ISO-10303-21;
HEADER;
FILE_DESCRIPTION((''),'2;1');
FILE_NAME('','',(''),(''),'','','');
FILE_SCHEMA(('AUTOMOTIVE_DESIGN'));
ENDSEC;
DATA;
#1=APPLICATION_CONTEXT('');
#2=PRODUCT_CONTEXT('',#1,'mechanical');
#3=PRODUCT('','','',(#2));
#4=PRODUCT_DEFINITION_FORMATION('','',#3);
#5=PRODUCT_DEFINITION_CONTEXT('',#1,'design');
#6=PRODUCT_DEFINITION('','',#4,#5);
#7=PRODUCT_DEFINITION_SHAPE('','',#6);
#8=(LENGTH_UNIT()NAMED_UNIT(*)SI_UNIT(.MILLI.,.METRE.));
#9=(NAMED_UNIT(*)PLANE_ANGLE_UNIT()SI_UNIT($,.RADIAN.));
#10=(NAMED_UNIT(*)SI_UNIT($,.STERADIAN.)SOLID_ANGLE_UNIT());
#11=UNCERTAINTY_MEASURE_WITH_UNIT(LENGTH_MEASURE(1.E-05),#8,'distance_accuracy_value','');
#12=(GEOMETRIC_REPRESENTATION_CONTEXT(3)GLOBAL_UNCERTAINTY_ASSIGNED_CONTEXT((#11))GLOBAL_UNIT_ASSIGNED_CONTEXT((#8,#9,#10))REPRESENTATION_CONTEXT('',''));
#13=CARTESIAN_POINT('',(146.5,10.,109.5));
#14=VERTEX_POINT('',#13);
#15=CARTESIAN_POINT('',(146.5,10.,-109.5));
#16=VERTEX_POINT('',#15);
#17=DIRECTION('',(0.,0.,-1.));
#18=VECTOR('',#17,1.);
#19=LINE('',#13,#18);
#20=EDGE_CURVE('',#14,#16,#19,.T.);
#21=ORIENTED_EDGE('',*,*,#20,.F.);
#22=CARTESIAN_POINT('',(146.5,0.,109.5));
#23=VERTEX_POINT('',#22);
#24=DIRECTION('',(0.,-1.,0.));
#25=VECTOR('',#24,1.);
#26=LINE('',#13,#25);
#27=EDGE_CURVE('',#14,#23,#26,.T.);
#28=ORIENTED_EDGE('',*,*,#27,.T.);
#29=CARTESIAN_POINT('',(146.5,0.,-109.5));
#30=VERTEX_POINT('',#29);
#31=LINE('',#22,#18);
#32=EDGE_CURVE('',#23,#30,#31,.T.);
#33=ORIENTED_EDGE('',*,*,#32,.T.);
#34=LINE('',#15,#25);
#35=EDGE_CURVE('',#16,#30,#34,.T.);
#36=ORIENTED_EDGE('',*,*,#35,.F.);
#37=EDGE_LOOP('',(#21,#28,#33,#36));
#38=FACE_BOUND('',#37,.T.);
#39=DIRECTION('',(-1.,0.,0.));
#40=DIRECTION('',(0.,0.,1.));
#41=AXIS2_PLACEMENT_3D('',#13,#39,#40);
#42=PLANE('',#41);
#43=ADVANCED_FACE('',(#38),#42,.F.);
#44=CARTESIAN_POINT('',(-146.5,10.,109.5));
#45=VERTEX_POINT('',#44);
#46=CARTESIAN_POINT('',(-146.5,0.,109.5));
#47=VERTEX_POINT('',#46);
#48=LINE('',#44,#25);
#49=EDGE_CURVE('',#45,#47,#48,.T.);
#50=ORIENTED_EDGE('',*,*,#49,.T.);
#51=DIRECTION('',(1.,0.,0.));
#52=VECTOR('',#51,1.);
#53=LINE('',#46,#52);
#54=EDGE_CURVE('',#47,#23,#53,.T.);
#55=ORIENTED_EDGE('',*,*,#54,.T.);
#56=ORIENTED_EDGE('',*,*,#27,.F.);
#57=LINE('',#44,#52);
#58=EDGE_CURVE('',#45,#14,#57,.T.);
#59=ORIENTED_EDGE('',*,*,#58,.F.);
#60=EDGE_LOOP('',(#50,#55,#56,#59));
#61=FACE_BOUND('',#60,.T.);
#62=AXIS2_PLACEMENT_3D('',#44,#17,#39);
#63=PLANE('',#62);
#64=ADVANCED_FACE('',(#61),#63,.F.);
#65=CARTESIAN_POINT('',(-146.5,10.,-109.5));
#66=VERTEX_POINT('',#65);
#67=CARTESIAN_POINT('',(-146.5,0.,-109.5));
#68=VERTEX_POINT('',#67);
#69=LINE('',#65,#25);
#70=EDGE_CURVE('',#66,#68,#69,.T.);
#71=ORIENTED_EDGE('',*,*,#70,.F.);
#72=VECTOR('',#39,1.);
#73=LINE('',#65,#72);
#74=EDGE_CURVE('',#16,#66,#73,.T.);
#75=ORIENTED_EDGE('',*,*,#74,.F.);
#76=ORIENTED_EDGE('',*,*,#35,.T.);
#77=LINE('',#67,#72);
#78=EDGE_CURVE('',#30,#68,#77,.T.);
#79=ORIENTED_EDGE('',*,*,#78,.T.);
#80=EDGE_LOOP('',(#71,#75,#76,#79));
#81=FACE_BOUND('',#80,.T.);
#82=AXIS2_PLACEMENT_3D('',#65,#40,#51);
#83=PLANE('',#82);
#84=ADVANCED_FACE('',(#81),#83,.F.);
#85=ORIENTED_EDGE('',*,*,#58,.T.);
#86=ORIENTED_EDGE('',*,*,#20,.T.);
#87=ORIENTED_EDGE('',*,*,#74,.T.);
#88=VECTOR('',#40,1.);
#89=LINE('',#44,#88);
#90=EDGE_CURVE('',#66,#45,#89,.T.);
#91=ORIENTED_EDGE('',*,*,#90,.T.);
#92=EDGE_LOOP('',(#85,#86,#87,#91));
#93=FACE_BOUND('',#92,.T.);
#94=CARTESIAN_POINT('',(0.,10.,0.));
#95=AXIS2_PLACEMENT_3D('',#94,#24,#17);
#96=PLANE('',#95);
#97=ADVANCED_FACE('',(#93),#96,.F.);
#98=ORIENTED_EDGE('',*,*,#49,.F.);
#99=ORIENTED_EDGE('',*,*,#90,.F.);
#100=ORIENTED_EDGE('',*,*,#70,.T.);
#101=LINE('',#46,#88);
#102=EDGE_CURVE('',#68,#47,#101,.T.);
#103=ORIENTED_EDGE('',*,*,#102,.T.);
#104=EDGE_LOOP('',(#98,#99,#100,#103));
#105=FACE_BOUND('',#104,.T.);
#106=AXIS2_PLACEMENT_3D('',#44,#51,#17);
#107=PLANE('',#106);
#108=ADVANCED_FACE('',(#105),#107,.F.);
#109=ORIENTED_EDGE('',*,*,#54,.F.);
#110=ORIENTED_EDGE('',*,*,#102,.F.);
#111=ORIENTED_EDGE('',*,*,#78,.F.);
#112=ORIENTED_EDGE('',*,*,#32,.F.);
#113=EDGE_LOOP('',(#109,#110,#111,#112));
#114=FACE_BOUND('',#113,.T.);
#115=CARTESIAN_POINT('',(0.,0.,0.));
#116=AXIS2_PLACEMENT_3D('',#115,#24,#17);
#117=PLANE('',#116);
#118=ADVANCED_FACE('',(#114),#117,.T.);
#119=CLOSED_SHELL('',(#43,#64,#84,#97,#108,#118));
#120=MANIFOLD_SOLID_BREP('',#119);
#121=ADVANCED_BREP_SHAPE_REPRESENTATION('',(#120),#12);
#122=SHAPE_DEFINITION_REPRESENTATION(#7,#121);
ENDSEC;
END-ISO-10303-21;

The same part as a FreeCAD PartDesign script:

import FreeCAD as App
import Part
import Sketcher

V = App.Vector
Q = App.Units.Quantity

doc = App.newDocument("Part")
body = doc.addObject("PartDesign::Body", "Body")

# Sketch on XZ plane
sketch1 = doc.addObject("Sketcher::SketchObject", "Sketch")
body.addObject(sketch1)
sketch1.AttachmentSupport = (doc.XZ_Plane, [""])
sketch1.MapMode = "FlatFace"
sketch1.addGeometry(Part.LineSegment(V(-146, -110, 0), V(-146, 110, 0)), False)
sketch1.addGeometry(Part.LineSegment(V(-146, 110, 0), V(146, 110, 0)), False)
sketch1.addGeometry(Part.LineSegment(V(146, 110, 0), V(146, -110, 0)), False)
sketch1.addGeometry(Part.LineSegment(V(146, -110, 0), V(-146, -110, 0)), False)
sketch1.addConstraint(Sketcher.Constraint("Coincident", 0, 2, 1, 1))
sketch1.addConstraint(Sketcher.Constraint("Coincident", 1, 2, 2, 1))
sketch1.addConstraint(Sketcher.Constraint("Coincident", 2, 2, 3, 1))
sketch1.addConstraint(Sketcher.Constraint("Coincident", 3, 2, 0, 1))
sketch1.addConstraint(Sketcher.Constraint("Vertical", 0))
sketch1.addConstraint(Sketcher.Constraint("Horizontal", 1))
sketch1.addConstraint(Sketcher.Constraint("Vertical", 2))
sketch1.addConstraint(Sketcher.Constraint("Horizontal", 3))
sketch1.addConstraint(Sketcher.Constraint("Symmetric", 0, 2, 2, 2, -1, 1))
sketch1.addConstraint(Sketcher.Constraint("DistanceX", 1, 1, 1, 2, Q("293 mm")))
sketch1.addConstraint(Sketcher.Constraint("DistanceY", 0, 1, 0, 2, Q("219 mm")))
pad1 = doc.addObject("PartDesign::Pad", "Pad")
body.addObject(pad1)
pad1.Profile = sketch1
pad1.Length = 10
pad1.Reversed = True

doc.recompute()
